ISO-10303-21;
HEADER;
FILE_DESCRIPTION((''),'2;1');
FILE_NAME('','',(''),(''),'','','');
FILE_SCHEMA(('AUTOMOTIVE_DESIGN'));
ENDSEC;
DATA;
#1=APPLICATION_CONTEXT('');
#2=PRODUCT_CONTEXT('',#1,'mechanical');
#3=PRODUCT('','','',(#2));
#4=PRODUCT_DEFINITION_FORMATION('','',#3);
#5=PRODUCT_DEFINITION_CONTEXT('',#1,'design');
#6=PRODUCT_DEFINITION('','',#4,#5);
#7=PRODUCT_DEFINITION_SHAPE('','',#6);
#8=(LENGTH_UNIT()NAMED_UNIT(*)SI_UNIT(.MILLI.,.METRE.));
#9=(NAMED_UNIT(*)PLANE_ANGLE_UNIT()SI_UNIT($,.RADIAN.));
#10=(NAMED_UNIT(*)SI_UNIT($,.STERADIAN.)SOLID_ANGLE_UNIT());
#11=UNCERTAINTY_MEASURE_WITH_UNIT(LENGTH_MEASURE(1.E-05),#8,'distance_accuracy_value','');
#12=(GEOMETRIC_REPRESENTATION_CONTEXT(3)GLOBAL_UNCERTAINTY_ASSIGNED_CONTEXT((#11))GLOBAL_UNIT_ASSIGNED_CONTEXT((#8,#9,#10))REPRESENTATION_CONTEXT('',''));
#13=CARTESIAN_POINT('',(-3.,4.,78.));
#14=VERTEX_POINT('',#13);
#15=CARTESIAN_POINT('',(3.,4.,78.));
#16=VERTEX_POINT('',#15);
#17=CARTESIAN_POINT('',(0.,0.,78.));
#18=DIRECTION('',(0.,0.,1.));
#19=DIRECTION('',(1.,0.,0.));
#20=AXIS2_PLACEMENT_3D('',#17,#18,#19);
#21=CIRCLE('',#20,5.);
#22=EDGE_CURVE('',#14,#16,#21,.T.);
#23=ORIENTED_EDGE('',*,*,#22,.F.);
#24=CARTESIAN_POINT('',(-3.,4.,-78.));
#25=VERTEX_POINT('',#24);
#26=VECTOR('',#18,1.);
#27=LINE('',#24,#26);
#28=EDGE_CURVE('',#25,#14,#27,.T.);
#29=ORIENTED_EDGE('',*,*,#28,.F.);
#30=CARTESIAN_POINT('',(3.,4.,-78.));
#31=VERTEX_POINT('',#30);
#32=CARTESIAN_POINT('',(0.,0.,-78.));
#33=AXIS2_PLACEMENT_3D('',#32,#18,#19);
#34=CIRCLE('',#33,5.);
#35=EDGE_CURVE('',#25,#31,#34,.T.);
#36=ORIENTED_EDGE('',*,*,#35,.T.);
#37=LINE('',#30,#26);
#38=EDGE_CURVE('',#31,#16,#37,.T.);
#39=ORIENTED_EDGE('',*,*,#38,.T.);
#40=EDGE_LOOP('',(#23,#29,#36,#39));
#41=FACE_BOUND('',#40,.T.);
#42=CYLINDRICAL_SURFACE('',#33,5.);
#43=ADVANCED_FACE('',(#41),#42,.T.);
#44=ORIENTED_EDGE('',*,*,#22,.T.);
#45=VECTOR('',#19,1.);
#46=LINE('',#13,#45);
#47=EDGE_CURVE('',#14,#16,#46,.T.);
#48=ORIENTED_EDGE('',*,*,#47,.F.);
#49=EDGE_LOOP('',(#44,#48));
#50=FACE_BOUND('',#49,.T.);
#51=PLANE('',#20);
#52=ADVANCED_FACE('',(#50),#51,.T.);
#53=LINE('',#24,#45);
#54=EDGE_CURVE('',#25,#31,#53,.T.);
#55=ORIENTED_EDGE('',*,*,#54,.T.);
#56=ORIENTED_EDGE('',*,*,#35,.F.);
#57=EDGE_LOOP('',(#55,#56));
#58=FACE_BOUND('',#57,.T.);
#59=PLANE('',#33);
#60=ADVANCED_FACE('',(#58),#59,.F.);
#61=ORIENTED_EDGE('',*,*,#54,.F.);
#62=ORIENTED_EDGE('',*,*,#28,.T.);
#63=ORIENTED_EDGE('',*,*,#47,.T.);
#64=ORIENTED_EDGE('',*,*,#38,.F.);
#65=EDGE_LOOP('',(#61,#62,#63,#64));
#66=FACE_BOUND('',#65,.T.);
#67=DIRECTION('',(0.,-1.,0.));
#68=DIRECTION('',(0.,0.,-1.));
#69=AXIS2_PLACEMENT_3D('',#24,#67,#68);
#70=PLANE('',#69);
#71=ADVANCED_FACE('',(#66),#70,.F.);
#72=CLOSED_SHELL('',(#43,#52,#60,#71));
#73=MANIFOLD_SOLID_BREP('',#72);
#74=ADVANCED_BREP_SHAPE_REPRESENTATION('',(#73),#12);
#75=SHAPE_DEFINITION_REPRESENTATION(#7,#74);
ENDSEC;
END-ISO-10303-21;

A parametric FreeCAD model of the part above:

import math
import FreeCAD as App
import Part
import Sketcher

doc = App.newDocument("Part")
body = doc.addObject("PartDesign::Body", "Body")

# Sketch on XY plane
sketch1 = body.newObject("Sketcher::SketchObject", "Sketch")
sketch1.AttachmentSupport = (doc.getObject("XY_Plane"), [""])
sketch1.MapMode = "FlatFace"
sketch1.addGeometry(Part.Circle(App.Vector(0, 0, 0), App.Vector(0, 0, 1), 5), False)
sketch1.addConstraint([
    Sketcher.Constraint("Coincident", 0, 3, -1, 1),
    Sketcher.Constraint("Diameter", 0, 10.0),
])
pad1 = body.newObject("PartDesign::Pad", "Pad")
pad1.Profile = sketch1
pad1.Type = "TwoLengths"
pad1.Length = 78
pad1.Length2 = 78

# Sketch on XY plane
sketch2 = body.newObject("Sketcher::SketchObject", "Sketch001")
sketch2.AttachmentSupport = (doc.getObject("XY_Plane"), [""])
sketch2.MapMode = "FlatFace"
sketch2.AttachmentOffset = App.Placement(App.Vector(0, 0, 78), App.Rotation())
sketch2.addGeometry([
    Part.LineSegment(App.Vector(-3, 4, 0), App.Vector(3, 4, 0)),
    Part.ArcOfCircle(Part.Circle(App.Vector(0, 0, 0), App.Vector(0, 0, 1), 5), math.radians(53), math.radians(127)),
], False)
sketch2.addConstraint([
    Sketcher.Constraint("Coincident", 0, 1, 1, 2),
    Sketcher.Constraint("Coincident", 1, 1, 0, 2),
    Sketcher.Constraint("Horizontal", 0),
    Sketcher.Constraint("Coincident", 1, 3, -1, 1),
    Sketcher.Constraint("Radius", 1, 5.0),
    Sketcher.Constraint("DistanceX", 0, 1, 0, 2, 6.0),
])
pocket1 = body.newObject("PartDesign::Pocket", "Pocket")
pocket1.Profile = sketch2
pocket1.Length = 156

doc.recompute()
